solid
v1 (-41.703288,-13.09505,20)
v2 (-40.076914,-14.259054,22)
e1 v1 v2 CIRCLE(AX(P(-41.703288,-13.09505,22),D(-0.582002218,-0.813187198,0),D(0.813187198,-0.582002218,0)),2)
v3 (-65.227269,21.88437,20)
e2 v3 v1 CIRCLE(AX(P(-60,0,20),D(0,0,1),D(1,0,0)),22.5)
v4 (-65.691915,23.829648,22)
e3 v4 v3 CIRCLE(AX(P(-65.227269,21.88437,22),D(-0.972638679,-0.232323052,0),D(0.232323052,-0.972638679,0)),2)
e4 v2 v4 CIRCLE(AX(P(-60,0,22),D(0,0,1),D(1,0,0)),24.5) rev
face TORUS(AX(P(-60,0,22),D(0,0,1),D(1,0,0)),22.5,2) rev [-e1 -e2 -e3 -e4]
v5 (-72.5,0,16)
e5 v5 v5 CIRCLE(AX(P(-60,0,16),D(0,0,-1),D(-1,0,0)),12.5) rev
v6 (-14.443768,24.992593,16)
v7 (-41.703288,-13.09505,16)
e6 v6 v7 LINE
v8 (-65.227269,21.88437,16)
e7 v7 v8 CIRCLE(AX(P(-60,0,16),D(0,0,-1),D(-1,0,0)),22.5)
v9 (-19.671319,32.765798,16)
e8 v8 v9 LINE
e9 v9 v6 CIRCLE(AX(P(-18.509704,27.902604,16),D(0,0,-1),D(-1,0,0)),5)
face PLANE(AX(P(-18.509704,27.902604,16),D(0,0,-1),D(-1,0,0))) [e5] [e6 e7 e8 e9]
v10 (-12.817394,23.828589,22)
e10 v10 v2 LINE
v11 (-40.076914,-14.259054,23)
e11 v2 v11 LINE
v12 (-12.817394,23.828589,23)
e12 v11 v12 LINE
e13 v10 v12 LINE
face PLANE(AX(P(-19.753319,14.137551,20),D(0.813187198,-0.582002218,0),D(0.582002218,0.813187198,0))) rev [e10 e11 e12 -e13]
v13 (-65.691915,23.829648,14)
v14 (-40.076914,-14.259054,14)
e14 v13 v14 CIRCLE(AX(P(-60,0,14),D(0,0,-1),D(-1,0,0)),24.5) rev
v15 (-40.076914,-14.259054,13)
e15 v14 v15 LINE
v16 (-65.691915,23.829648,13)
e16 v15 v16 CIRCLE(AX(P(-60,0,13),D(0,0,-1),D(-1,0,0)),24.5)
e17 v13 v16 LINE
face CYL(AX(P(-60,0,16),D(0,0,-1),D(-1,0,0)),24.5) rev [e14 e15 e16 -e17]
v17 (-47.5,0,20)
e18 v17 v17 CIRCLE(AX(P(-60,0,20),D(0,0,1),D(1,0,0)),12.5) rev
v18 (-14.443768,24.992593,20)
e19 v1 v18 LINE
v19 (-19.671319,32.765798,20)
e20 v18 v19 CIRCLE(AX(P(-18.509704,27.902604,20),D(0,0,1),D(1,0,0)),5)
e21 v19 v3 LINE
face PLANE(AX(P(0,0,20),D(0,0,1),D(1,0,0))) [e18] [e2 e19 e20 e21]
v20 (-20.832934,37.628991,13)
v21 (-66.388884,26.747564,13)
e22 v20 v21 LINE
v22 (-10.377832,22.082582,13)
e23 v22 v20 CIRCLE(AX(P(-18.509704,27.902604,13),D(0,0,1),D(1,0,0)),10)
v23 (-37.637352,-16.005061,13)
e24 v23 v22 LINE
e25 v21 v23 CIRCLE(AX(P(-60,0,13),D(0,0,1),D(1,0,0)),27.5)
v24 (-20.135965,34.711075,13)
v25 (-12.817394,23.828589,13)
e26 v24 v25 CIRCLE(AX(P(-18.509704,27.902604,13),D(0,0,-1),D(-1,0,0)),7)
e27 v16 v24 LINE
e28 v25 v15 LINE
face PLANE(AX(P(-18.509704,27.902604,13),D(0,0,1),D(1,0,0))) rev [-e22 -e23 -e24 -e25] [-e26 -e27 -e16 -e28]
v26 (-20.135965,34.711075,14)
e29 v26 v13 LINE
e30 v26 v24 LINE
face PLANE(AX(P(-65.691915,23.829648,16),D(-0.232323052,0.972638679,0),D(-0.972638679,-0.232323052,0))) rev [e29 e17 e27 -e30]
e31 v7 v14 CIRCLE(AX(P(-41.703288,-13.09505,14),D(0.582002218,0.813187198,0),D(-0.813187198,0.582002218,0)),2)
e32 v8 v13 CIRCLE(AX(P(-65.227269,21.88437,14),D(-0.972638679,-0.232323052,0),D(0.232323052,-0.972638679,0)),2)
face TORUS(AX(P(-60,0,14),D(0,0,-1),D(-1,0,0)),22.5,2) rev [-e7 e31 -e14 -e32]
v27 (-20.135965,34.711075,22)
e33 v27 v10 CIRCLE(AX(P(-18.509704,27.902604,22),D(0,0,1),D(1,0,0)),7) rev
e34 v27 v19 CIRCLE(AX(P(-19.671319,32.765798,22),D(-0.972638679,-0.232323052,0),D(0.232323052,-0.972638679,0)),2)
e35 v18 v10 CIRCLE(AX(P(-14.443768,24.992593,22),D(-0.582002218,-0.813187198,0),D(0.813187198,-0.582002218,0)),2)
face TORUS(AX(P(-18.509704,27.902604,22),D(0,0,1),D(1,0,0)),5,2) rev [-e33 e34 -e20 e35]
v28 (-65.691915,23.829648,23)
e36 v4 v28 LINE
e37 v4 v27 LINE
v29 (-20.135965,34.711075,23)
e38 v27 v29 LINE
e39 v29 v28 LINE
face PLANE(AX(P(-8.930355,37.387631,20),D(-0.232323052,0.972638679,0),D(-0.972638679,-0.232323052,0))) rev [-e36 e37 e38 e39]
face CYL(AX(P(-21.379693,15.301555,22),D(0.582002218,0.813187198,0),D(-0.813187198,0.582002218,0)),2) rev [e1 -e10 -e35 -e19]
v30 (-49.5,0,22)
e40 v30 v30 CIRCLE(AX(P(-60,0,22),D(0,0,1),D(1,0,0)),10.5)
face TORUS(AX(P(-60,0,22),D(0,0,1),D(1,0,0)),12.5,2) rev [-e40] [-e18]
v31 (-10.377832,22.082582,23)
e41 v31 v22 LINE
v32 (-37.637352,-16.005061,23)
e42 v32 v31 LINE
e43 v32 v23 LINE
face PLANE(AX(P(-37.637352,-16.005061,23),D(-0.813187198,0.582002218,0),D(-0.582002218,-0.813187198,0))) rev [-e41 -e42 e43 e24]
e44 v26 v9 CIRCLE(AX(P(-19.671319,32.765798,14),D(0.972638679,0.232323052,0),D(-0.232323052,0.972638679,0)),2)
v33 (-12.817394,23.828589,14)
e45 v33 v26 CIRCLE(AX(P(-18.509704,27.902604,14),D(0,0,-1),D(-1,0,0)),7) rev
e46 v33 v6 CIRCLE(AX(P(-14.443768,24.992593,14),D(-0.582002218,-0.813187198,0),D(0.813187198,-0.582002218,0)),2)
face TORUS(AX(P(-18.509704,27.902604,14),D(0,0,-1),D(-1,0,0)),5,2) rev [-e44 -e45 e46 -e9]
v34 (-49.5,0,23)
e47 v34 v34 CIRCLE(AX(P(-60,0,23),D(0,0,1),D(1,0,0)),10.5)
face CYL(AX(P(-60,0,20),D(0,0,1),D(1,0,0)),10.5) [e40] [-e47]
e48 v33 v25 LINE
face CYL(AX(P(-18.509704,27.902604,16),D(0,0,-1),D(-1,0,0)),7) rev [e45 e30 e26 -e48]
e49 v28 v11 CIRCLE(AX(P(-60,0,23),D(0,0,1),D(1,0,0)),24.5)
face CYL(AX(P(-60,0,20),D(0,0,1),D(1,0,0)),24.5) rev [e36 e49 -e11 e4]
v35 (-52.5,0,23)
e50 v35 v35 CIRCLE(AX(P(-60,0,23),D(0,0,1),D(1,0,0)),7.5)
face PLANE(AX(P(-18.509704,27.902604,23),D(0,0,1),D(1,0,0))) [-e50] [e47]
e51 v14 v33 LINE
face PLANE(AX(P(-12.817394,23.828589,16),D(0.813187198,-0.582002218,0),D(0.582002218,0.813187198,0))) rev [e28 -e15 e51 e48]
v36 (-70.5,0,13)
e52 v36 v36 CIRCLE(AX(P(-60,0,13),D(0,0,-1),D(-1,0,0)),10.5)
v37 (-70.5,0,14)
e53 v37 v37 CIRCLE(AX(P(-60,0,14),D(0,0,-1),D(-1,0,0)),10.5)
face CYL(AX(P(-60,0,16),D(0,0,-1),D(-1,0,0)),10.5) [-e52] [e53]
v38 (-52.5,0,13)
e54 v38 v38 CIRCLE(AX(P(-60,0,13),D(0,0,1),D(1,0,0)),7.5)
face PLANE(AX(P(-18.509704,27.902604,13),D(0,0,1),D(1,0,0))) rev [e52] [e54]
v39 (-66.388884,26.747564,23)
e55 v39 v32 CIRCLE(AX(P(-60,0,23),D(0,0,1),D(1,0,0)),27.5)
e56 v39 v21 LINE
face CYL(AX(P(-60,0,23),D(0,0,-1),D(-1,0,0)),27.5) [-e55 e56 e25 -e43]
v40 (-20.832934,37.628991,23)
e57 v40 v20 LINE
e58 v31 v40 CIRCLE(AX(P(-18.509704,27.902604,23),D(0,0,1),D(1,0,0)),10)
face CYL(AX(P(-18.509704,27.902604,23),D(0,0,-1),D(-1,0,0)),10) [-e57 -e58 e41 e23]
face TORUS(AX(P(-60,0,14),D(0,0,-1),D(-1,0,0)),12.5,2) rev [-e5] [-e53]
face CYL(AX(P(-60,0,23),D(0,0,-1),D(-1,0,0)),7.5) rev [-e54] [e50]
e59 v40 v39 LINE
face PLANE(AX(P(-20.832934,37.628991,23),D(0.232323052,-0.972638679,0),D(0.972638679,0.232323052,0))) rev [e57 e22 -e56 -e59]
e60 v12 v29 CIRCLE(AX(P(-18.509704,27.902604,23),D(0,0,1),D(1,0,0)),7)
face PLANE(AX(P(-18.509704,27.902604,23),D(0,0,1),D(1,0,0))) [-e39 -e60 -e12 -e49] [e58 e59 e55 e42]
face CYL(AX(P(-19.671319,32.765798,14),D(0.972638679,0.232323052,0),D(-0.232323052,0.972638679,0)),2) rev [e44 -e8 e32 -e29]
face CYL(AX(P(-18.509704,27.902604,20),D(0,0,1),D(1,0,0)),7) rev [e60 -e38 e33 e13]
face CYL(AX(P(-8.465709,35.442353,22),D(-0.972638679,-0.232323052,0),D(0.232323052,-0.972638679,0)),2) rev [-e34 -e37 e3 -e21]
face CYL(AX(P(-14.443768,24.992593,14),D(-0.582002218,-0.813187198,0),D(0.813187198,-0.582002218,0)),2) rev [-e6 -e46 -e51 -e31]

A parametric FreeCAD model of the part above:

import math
import FreeCAD as App
import Part
import Sketcher
from FreeCAD import Vector


def edges_at(feature, points):
    """Names of the edges that pass closest to the given points."""
    edges = feature.Shape.Edges
    near = lambda p: min(range(len(edges)), key=lambda i: edges[i].distToShape(Part.Vertex(*p))[0])
    return sorted({f"Edge{near(p) + 1}" for p in points})

doc = App.newDocument("Part")
params = doc.addObject("Spreadsheet::Sheet", "Params")
for row, (alias, value) in enumerate([
    ("sketch1_diameter", "15 mm"),
    ("sketch1_radius", "10 mm"),
    ("sketch1_radius2", "27.5 mm"),
    ("pad1_length", "10 mm"),
    ("sketch2_diameter", "21 mm"),
    ("sketch2_radius", "7 mm"),
    ("sketch2_radius2", "24.5 mm"),
    ("pocket1_length", "3 mm"),
    ("sketch3_diameter", "21 mm"),
    ("sketch3_radius", "7 mm"),
    ("sketch3_radius2", "24.5 mm"),
    ("pocket2_length", "3 mm"),
    ("fillet_radius", "2 mm"),
], start=1):
    params.set(f"A{row}", alias)
    params.set(f"B{row}", "=" + value)
    params.setAlias(f"B{row}", alias)

body = doc.addObject("PartDesign::Body", "Body")

sketch1 = body.newObject("Sketcher::SketchObject", "Sketch")
sketch1.AttachmentSupport = (doc.getObject("XY_Plane"), [""])
sketch1.MapMode = "FlatFace"
sketch1.AttachmentOffset = App.Placement(Vector(0, 0, 13), App.Rotation())
sketch1.addGeometry(Part.LineSegment(Vector(-20.832934, 37.628991, 0), Vector(-66.388884, 26.747564, 0)), False)
sketch1.addGeometry(Part.ArcOfCircle(Part.Circle(Vector(-60, 0, 0), Vector(0, 0, 1), 27.5), math.radians(103.433878), math.radians(324.408508)), False)
sketch1.addGeometry(Part.LineSegment(Vector(-37.637352, -16.005061, 0), Vector(-10.377832, 22.082582, 0)), False)
sketch1.addGeometry(Part.ArcOfCircle(Part.Circle(Vector(-18.509704, 27.902604, 0), Vector(0, 0, 1), 10), math.radians(-35.591492), math.radians(103.433878)), False)
sketch1.addGeometry(Part.Circle(Vector(-60, 0, 0), Vector(0, 0, 1), 7.5), False)
sketch1.addConstraint(Sketcher.Constraint("Tangent", 0, 2, 1, 1))
sketch1.addConstraint(Sketcher.Constraint("Tangent", 1, 2, 2, 1))
sketch1.addConstraint(Sketcher.Constraint("Tangent", 2, 2, 3, 1))
sketch1.addConstraint(Sketcher.Constraint("Tangent", 3, 2, 0, 1))
sketch1.addConstraint(Sketcher.Constraint("Coincident", 4, 3, 1, 3))
sketch1.addConstraint(Sketcher.Constraint("PointOnObject", 1, 3, -1))
sketch1.addConstraint(Sketcher.Constraint("Diameter", 4, 15.0))
sketch1.addConstraint(Sketcher.Constraint("Radius", 3, 10.0))
sketch1.addConstraint(Sketcher.Constraint("Radius", 1, 27.5))
sketch1.addConstraint(Sketcher.Constraint("DistanceX", 1, 3, -1, 1, 60.0))
sketch1.addConstraint(Sketcher.Constraint("DistanceY", 1, 2, -1, 1, 16.005061))
sketch1.addConstraint(Sketcher.Constraint("DistanceX", 2, 2, -1, 1, 10.377832))
sketch1.setExpression("Constraints[6]", "Params.sketch1_diameter")
sketch1.setExpression("Constraints[7]", "Params.sketch1_radius")
sketch1.setExpression("Constraints[8]", "Params.sketch1_radius2")
pad1 = body.newObject("PartDesign::Pad", "Pad")
pad1.Profile = sketch1
pad1.setExpression("Length", "Params.pad1_length")

sketch2 = body.newObject("Sketcher::SketchObject", "Sketch001")
sketch2.AttachmentSupport = (doc.getObject("XY_Plane"), [""])
sketch2.MapMode = "FlatFace"
sketch2.AttachmentOffset = App.Placement(Vector(0, 0, 23), App.Rotation())
sketch2.addGeometry(Part.LineSegment(Vector(-20.135965, 34.711075, 0), Vector(-65.691915, 23.829648, 0)), False)
sketch2.addGeometry(Part.ArcOfCircle(Part.Circle(Vector(-60, 0, 0), Vector(0, 0, 1), 24.5), math.radians(103.433878), math.radians(324.408508)), False)
sketch2.addGeometry(Part.LineSegment(Vector(-40.076914, -14.259054, 0), Vector(-12.817394, 23.828589, 0)), False)
sketch2.addGeometry(Part.ArcOfCircle(Part.Circle(Vector(-18.509704, 27.902604, 0), Vector(0, 0, 1), 7), math.radians(-35.591492), math.radians(103.433878)), False)
sketch2.addGeometry(Part.Circle(Vector(-60, 0, 0), Vector(0, 0, 1), 10.5), False)
sketch2.addConstraint(Sketcher.Constraint("Tangent", 0, 2, 1, 1))
sketch2.addConstraint(Sketcher.Constraint("Tangent", 1, 2, 2, 1))
sketch2.addConstraint(Sketcher.Constraint("Tangent", 2, 2, 3, 1))
sketch2.addConstraint(Sketcher.Constraint("Tangent", 3, 2, 0, 1))
sketch2.addConstraint(Sketcher.Constraint("Coincident", 4, 3, 1, 3))
sketch2.addConstraint(Sketcher.Constraint("PointOnObject", 1, 3, -1))
sketch2.addConstraint(Sketcher.Constraint("Diameter", 4, 21.0))
sketch2.addConstraint(Sketcher.Constraint("Radius", 3, 7.0))
sketch2.addConstraint(Sketcher.Constraint("Radius", 1, 24.5))
sketch2.addConstraint(Sketcher.Constraint("DistanceX", 1, 3, -1, 1, 60.0))
sketch2.addConstraint(Sketcher.Constraint("DistanceX", 0, 2, 1, 2, 25.615001))
sketch2.addConstraint(Sketcher.Constraint("DistanceY", 1, 2, 0, 2, 38.088702))
sketch2.setExpression("Constraints[6]", "Params.sketch2_diameter")
sketch2.setExpression("Constraints[7]", "Params.sketch2_radius")
sketch2.setExpression("Constraints[8]", "Params.sketch2_radius2")
pocket1 = body.newObject("PartDesign::Pocket", "Pocket")
pocket1.Profile = sketch2
pocket1.setExpression("Length", "Params.pocket1_length")

sketch3 = body.newObject("Sketcher::SketchObject", "Sketch002")
sketch3.AttachmentSupport = (doc.getObject("XY_Plane"), [""])
sketch3.MapMode = "FlatFace"
sketch3.AttachmentOffset = App.Placement(Vector(0, 0, 16), App.Rotation())
sketch3.addGeometry(Part.LineSegment(Vector(-65.691915, 23.829648, 0), Vector(-20.135965, 34.711075, 0)), False)
sketch3.addGeometry(Part.ArcOfCircle(Part.Circle(Vector(-18.509704, 27.902604, 0), Vector(0, 0, 1), 7), math.radians(-35.591492), math.radians(103.433878)), False)
sketch3.addGeometry(Part.LineSegment(Vector(-12.817394, 23.828589, 0), Vector(-40.076914, -14.259054, 0)), False)
sketch3.addGeometry(Part.ArcOfCircle(Part.Circle(Vector(-60, 0, 0), Vector(0, 0, 1), 24.5), math.radians(103.433878), math.radians(324.408508)), False)
sketch3.addGeometry(Part.Circle(Vector(-60, 0, 0), Vector(0, 0, 1), 10.5), False)
sketch3.addConstraint(Sketcher.Constraint("Tangent", 0, 2, 1, 2))
sketch3.addConstraint(Sketcher.Constraint("Tangent", 1, 1, 2, 1))
sketch3.addConstraint(Sketcher.Constraint("Tangent", 2, 2, 3, 2))
sketch3.addConstraint(Sketcher.Constraint("Tangent", 3, 1, 0, 1))
sketch3.addConstraint(Sketcher.Constraint("Coincident", 4, 3, 3, 3))
sketch3.addConstraint(Sketcher.Constraint("PointOnObject", 3, 3, -1))
sketch3.addConstraint(Sketcher.Constraint("Diameter", 4, 21.0))
sketch3.addConstraint(Sketcher.Constraint("Radius", 1, 7.0))
sketch3.addConstraint(Sketcher.Constraint("Radius", 3, 24.5))
sketch3.addConstraint(Sketcher.Constraint("DistanceX", 3, 3, -1, 1, 60.0))
sketch3.addConstraint(Sketcher.Constraint("DistanceX", 3, 1, 2, 2, 25.615001))
sketch3.addConstraint(Sketcher.Constraint("DistanceY", 2, 2, 3, 1, 38.088702))
sketch3.setExpression("Constraints[6]", "Params.sketch3_diameter")
sketch3.setExpression("Constraints[7]", "Params.sketch3_radius")
sketch3.setExpression("Constraints[8]", "Params.sketch3_radius2")
pocket2 = body.newObject("PartDesign::Pocket", "Pocket001")
pocket2.Profile = sketch3
pocket2.setExpression("Length", "Params.pocket2_length")
doc.recompute()

fillet = body.newObject("PartDesign::Fillet", "Fillet")
fillet.Base = (pocket2, edges_at(pocket2, [
    (-42.914, 29.27, 20),
    (-12.701, 31.809, 20),
    (-26.447, 4.785, 20),
    (-80.33, -13.672, 20),
    (-70.5, 0, 20),
    (-12.701, 31.809, 16),
    (-42.914, 29.27, 16),
    (-80.33, -13.672, 16),
    (-26.447, 4.785, 16),
    (-70.5, 0, 16),
]))
fillet.setExpression("Radius", "Params.fillet_radius")

doc.recompute()
